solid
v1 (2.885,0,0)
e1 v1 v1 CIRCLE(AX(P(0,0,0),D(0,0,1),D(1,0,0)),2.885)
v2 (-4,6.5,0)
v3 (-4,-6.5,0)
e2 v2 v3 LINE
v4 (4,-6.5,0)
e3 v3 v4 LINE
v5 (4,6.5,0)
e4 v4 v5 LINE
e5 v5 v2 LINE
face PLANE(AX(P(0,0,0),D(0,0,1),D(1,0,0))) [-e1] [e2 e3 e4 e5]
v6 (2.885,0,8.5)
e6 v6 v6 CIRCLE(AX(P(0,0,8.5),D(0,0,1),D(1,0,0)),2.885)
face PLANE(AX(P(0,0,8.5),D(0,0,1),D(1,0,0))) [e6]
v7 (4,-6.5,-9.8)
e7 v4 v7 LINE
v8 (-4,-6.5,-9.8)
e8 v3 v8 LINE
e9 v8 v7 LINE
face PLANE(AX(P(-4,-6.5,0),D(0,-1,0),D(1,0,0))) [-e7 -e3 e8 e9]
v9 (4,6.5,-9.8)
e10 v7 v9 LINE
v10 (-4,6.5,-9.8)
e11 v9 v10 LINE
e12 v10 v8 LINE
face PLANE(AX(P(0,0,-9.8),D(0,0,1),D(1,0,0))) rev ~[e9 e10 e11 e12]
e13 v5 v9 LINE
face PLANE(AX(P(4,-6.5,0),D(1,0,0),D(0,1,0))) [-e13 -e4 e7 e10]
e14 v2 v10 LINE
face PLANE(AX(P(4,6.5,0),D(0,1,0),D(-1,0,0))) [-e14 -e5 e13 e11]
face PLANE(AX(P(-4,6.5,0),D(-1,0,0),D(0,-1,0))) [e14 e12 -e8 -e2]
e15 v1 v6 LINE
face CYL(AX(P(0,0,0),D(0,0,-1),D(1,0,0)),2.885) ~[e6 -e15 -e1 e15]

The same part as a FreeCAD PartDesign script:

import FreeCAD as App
import Part
import Sketcher

doc = App.newDocument("Part")
body = doc.addObject("PartDesign::Body", "Body")

# Sketch on XY plane
sketch1 = body.newObject("Sketcher::SketchObject", "Sketch")
sketch1.AttachmentSupport = (doc.getObject("XY_Plane"), [""])
sketch1.MapMode = "FlatFace"
sketch1.addGeometry(Part.LineSegment(App.Vector(-4, 6, 0), App.Vector(-4, -6, 0)), False)
sketch1.addGeometry(Part.LineSegment(App.Vector(-4, -6, 0), App.Vector(4, -6, 0)), False)
sketch1.addGeometry(Part.LineSegment(App.Vector(4, -6, 0), App.Vector(4, 6, 0)), False)
sketch1.addGeometry(Part.LineSegment(App.Vector(4, 6, 0), App.Vector(-4, 6, 0)), False)
sketch1.addConstraint(Sketcher.Constraint("Coincident", 0, 2, 1, 1))
sketch1.addConstraint(Sketcher.Constraint("Coincident", 1, 2, 2, 1))
sketch1.addConstraint(Sketcher.Constraint("Coincident", 2, 2, 3, 1))
sketch1.addConstraint(Sketcher.Constraint("Coincident", 3, 2, 0, 1))
sketch1.addConstraint(Sketcher.Constraint("Vertical", 0))
sketch1.addConstraint(Sketcher.Constraint("Horizontal", 1))
sketch1.addConstraint(Sketcher.Constraint("Vertical", 2))
sketch1.addConstraint(Sketcher.Constraint("Horizontal", 3))
sketch1.addConstraint(Sketcher.Constraint("Symmetric", 0, 2, 2, 2, -1, 1))
sketch1.addConstraint(Sketcher.Constraint("DistanceX", 1, 1, 1, 2, 8.0))
sketch1.addConstraint(Sketcher.Constraint("DistanceY", 0, 2, 0, 1, 13.0))
pad1 = body.newObject("PartDesign::Pad", "Pad")
pad1.Profile = sketch1
pad1.Length = 9.8
pad1.Reversed = True

# Sketch on XY plane
sketch2 = body.newObject("Sketcher::SketchObject", "Sketch001")
sketch2.AttachmentSupport = (doc.getObject("XY_Plane"), [""])
sketch2.MapMode = "FlatFace"
sketch2.addGeometry(Part.Circle(App.Vector(0, 0, 0), App.Vector(0, 0, 1), 2.9), False)
sketch2.addConstraint(Sketcher.Constraint("Coincident", 0, 3, -1, 1))
sketch2.addConstraint(Sketcher.Constraint("Diameter", 0, 5.77))
pad2 = body.newObject("PartDesign::Pad", "Pad001")
pad2.Profile = sketch2
pad2.Length = 8.5

doc.recompute()
